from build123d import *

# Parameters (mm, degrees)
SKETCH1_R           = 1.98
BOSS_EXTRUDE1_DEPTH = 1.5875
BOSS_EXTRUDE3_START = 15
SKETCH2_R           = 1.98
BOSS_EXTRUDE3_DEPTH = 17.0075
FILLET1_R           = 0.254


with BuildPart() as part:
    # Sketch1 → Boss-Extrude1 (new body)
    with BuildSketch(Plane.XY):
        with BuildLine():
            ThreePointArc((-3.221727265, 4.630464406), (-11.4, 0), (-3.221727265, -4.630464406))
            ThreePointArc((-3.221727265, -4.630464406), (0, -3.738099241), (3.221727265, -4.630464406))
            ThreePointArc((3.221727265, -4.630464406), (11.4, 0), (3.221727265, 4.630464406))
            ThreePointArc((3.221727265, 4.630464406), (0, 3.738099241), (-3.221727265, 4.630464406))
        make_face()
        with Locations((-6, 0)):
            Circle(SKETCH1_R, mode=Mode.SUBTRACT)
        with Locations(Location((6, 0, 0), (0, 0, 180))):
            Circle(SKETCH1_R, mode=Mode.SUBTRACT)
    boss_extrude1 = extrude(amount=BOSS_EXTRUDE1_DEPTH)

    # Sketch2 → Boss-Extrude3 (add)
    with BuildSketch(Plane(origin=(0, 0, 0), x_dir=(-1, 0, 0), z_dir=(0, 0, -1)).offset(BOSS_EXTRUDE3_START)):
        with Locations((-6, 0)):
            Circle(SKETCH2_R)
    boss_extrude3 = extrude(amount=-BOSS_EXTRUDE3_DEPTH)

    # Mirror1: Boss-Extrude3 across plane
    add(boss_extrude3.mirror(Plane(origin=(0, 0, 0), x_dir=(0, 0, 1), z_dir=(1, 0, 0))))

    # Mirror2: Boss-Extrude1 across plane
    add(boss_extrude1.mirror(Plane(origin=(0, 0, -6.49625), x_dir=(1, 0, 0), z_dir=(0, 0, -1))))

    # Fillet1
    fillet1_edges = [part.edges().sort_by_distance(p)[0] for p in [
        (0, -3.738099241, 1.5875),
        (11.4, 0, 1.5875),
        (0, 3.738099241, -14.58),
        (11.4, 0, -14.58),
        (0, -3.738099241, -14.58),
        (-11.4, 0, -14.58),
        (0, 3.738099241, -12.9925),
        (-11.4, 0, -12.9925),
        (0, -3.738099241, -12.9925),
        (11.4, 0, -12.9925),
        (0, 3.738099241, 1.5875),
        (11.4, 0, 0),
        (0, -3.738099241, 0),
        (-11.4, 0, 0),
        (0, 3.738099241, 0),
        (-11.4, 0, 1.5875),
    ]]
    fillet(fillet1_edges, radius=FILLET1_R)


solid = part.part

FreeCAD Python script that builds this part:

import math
import FreeCAD as App
import Part
import Sketcher
from FreeCAD import Vector
Q = App.Units.Quantity


def edges_at(feature, points):
    """Names of the edges that pass closest to the given points."""
    edges = feature.Shape.Edges
    near = lambda p: min(range(len(edges)), key=lambda i: edges[i].distToShape(Part.Vertex(*p))[0])
    return sorted({f"Edge{near(p) + 1}" for p in points})

doc = App.newDocument("Part")
body = doc.addObject("PartDesign::Body", "Body")

sketch1 = body.newObject("Sketcher::SketchObject", "Sketch")
sketch1.AttachmentSupport = (doc.getObject("XY_Plane"), [""])
sketch1.MapMode = "FlatFace"
sketch1.addGeometry([
    Part.ArcOfCircle(Part.Circle(Vector(-6, 0, 0), Vector(0, 0, 1), 5.4), math.radians(59), math.radians(301)),
    Part.ArcOfCircle(Part.Circle(Vector(0, -10, 0), Vector(0, 0, 1), 6.3), math.radians(59), math.radians(121)),
    Part.ArcOfCircle(Part.Circle(Vector(6, 0, 0), Vector(0, 0, 1), 5.4), math.radians(-121), math.radians(121)),
    Part.ArcOfCircle(Part.Circle(Vector(0, 10, 0), Vector(0, 0, 1), 6.3), math.radians(-121), math.radians(-59)),
    Part.Circle(Vector(-6, 0, 0), Vector(0, 0, 1), 2),
    Part.Circle(Vector(6, 0, 0), Vector(0, 0, 1), 2),
], False)
sketch1.addConstraint([
    Sketcher.Constraint("Tangent", 0, 2, 1, 2),
    Sketcher.Constraint("Tangent", 1, 1, 2, 1),
    Sketcher.Constraint("Tangent", 2, 2, 3, 2),
    Sketcher.Constraint("Tangent", 3, 1, 0, 1),
    Sketcher.Constraint("Coincident", 4, 3, 0, 3),
    Sketcher.Constraint("Coincident", 5, 3, 2, 3),
    Sketcher.Constraint("Equal", 0, 2),
    Sketcher.Constraint("Equal", 1, 3),
    Sketcher.Constraint("Equal", 4, 5),
    Sketcher.Constraint("Symmetric", 0, 3, 2, 3, -1, 1),
    Sketcher.Constraint("PointOnObject", 0, 3, -1),
    Sketcher.Constraint("Diameter", 4, Q("3.96 mm")),
    Sketcher.Constraint("Radius", 0, Q("5.4 mm")),
    Sketcher.Constraint("Radius", 1, Q("6.261922 mm")),
    Sketcher.Constraint("DistanceY", 1, 3, 0, 2, Q("0.2113999 in")),
])
pad1 = body.newObject("PartDesign::Pad", "Pad")
pad1.Profile = sketch1
pad1.Length = Q("0.0625 in")

sketch2 = body.newObject("Sketcher::SketchObject", "Sketch001")
sketch2.AttachmentSupport = (doc.getObject("XY_Plane"), [""])
sketch2.MapMode = "FlatFace"
sketch2.AttachmentOffset = App.Placement(Vector(0, 0, -15), App.Rotation())
sketch2.addGeometry(Part.Circle(Vector(6, 0, 0), Vector(0, 0, 1), 2), False)
sketch2.addConstraint([
    Sketcher.Constraint("PointOnObject", 0, 3, -1),
    Sketcher.Constraint("Diameter", 0, Q("3.96 mm")),
    Sketcher.Constraint("DistanceX", -1, 1, 0, 3, Q("6 mm")),
])
pad2 = body.newObject("PartDesign::Pad", "Pad001")
pad2.Profile = sketch2
pad2.Length = 17.0075
doc.recompute()

mirrored = body.newObject("PartDesign::Mirrored", "Mirrored")
mirrored.Originals = [pad2]
mirrored.MirrorPlane = (doc.getObject("YZ_Plane"), [""])
body.Tip = mirrored
doc.recompute()

datumplane = body.newObject("PartDesign::Plane", "DatumPlane")
datumplane.AttachmentSupport = (doc.getObject("XY_Plane"), [""])
datumplane.MapMode = "FlatFace"
datumplane.AttachmentOffset = App.Placement(Vector(0, 0, -6.49625), App.Rotation())
mirrored2 = body.newObject("PartDesign::Mirrored", "Mirrored001")
mirrored2.Originals = [pad1]
mirrored2.MirrorPlane = (datumplane, [""])
body.Tip = mirrored2
doc.recompute()

fillet = body.newObject("PartDesign::Fillet", "Fillet")
fillet.Base = (mirrored2, edges_at(mirrored2, [
    (0, -3.738, 1.587),
    (11.4, 0, 1.587),
    (0, 3.738, -14.58),
    (11.4, 0, -14.58),
    (0, -3.738, -14.58),
    (-11.4, 0, -14.58),
    (0, 3.738, -12.992),
    (-11.4, 0, -12.992),
    (0, -3.738, -12.992),
    (11.4, 0, -12.992),
    (0, 3.738, 1.587),
    (11.4, 0, 0),
    (0, -3.738, 0),
    (-11.4, 0, 0),
    (0, 3.738, 0),
    (-11.4, 0, 1.587),
]))
fillet.Radius = Q("0.01 in")

doc.recompute()
